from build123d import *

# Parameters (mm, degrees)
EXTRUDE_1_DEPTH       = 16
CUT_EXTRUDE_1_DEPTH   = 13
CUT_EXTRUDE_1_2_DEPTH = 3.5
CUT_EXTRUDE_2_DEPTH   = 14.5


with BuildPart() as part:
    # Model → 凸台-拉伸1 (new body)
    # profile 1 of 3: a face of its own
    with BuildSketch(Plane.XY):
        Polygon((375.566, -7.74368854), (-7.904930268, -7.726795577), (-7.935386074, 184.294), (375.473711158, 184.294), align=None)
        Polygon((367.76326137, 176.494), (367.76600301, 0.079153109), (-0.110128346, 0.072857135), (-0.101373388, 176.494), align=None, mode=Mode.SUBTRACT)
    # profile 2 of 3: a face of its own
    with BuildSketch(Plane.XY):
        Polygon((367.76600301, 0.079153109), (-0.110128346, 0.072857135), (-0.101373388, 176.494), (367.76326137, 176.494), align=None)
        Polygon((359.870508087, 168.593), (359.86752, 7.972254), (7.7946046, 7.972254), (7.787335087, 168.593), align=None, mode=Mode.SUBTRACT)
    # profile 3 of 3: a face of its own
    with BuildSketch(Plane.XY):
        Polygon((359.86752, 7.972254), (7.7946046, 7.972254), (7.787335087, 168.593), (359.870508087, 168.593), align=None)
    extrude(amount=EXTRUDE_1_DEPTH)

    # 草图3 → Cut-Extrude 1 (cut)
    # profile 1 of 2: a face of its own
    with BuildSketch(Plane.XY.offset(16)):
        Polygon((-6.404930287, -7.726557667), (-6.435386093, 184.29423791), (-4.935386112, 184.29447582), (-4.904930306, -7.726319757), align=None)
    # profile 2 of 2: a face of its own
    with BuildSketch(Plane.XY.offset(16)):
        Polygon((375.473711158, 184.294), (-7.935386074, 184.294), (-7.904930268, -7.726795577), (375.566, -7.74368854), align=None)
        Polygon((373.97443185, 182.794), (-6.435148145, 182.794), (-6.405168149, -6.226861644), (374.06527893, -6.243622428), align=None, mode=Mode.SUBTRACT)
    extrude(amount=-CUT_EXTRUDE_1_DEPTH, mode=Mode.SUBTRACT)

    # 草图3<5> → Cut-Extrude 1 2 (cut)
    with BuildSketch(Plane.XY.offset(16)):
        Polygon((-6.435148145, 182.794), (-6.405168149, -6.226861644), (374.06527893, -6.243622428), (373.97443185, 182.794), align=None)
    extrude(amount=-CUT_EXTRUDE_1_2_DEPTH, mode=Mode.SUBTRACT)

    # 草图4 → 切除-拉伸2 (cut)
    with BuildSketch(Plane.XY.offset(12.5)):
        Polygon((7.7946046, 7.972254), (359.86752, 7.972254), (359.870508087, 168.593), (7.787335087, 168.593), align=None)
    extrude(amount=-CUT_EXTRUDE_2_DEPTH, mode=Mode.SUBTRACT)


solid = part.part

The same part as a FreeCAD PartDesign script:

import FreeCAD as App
import Part
import Sketcher


def add_polygon(sketch, points):
    """Adds a closed chain of lines whose ends are joined by coincident constraints."""
    first, n = sketch.GeometryCount, len(points)
    for a, b in zip(points, points[1:] + points[:1]):
        sketch.addGeometry(Part.LineSegment(App.Vector(*a, 0), App.Vector(*b, 0)), False)
    for i in range(n):
        sketch.addConstraint(Sketcher.Constraint("Coincident", first + i, 2, first + (i + 1) % n, 1))

doc = App.newDocument("Part")
body = doc.addObject("PartDesign::Body", "Body")

# Sketch on XY plane
sketch1 = body.newObject("Sketcher::SketchObject", "Sketch")
sketch1.AttachmentSupport = (doc.getObject("XY_Plane"), [""])
sketch1.MapMode = "FlatFace"
add_polygon(sketch1, [(-8, -8), (376, -8), (375, 184), (-8, 184)])  # lines 0-3
sketch1.addConstraint([
    Sketcher.Constraint("Horizontal", 2),
    Sketcher.Constraint("DistanceX", -1, 1, 0, 2, 375.566),
    Sketcher.Constraint("DistanceY", -1, 1, 1, 2, 184.294),
    Sketcher.Constraint("Distance", 0, 383.470931),
    Sketcher.Constraint("Distance", 1, 192.037711),
    Sketcher.Constraint("DistanceX", 2, 2, 2, 1, 383.409097),
    Sketcher.Constraint("DistanceX", -1, 1, 1, 2, 375.473711),
    Sketcher.Constraint("Distance", 3, 192.020798),
])
pad1 = body.newObject("PartDesign::Pad", "Pad")
pad1.Profile = sketch1
pad1.Length = 16

# Sketch on XY plane
sketch2 = body.newObject("Sketcher::SketchObject", "Sketch001")
sketch2.AttachmentSupport = (doc.getObject("XY_Plane"), [""])
sketch2.MapMode = "FlatFace"
sketch2.AttachmentOffset = App.Placement(App.Vector(0, 0, 16), App.Rotation())
add_polygon(sketch2, [(375.566, -7.74369), (375.47371, 184.294), (-4.93539, 184.294), (-4.93539, 184.29448), (-6.43539, 184.29424), (-6.43539, 184.294), (-7.93539, 184.294), (-7.90493, -7.7268)])  # lines 0-7
add_polygon(sketch2, [(-4.93515, 182.794), (373.97443, 182.794), (374.06528, -6.24362), (-4.90517, -6.22693)])  # lines 8-11
sketch2.addConstraint([
    Sketcher.Constraint("Horizontal", 1),
    Sketcher.Constraint("Vertical", 2),
    Sketcher.Constraint("Vertical", 4),
    Sketcher.Constraint("Horizontal", 5),
    Sketcher.Constraint("Horizontal", 8),
    Sketcher.Constraint("Perpendicular", 3, 6),
    Sketcher.Constraint("Parallel", 0, 9),
    Sketcher.Constraint("Parallel", 7, 10),
    Sketcher.Constraint("Parallel", 6, 11),
    Sketcher.Constraint("Horizontal", 1, 2, 4, 2),
    Sketcher.Constraint("DistanceX", 5, 2, 5, 1, 1.5),
    Sketcher.Constraint("DistanceX", 5, 2, 2, 2, 3.0),
    Sketcher.Constraint("DistanceY", 8, 2, 0, 2, 1.5),
    Sketcher.Constraint("DistanceY", -1, 1, 0, 2, 184.294),
    Sketcher.Constraint("DistanceX", -1, 1, 7, 2, 375.566),
    Sketcher.Constraint("DistanceX", 8, 1, 8, 2, 378.90958),
    Sketcher.Constraint("Distance", 0, 192.037711),
    Sketcher.Constraint("Distance", 7, 383.470931),
    Sketcher.Constraint("Distance", 11, 189.02093),
    Sketcher.Constraint("DistanceX", 1, 2, 1, 1, 380.409097),
    Sketcher.Constraint("DistanceY", 2, 1, 2, 2, 0.000476),
    Sketcher.Constraint("DistanceX", -1, 1, 0, 2, 375.473711),
    Sketcher.Constraint("DistanceX", -1, 1, 8, 2, 373.974432),
    Sketcher.Constraint("DistanceY", 6, 2, 2, 2, 192.021271),
])
pocket1 = body.newObject("PartDesign::Pocket", "Pocket")
pocket1.Profile = sketch2
pocket1.Length = 13

# Sketch on XY plane
sketch3 = body.newObject("Sketcher::SketchObject", "Sketch002")
sketch3.AttachmentSupport = (doc.getObject("XY_Plane"), [""])
sketch3.MapMode = "FlatFace"
sketch3.AttachmentOffset = App.Placement(App.Vector(0, 0, 16), App.Rotation())
add_polygon(sketch3, [(-6, 183), (-6, -6), (374, -6), (374, 183)])  # lines 0-3
sketch3.addConstraint([
    Sketcher.Constraint("Horizontal", 3),
    Sketcher.Constraint("DistanceY", -1, 1, 2, 2, 182.794),
    Sketcher.Constraint("DistanceX", 3, 2, 3, 1, 380.40958),
    Sketcher.Constraint("DistanceX", 0, 2, 2, 2, 380.3796),
    Sketcher.Constraint("DistanceX", 0, 2, -1, 1, 6.405168),
    Sketcher.Constraint("DistanceY", 0, 2, -1, 1, 6.226862),
    Sketcher.Constraint("DistanceX", -1, 1, 1, 2, 374.065279),
    Sketcher.Constraint("DistanceY", 1, 2, 0, 2, 0.016761),
])
pocket2 = body.newObject("PartDesign::Pocket", "Pocket001")
pocket2.Profile = sketch3
pocket2.Length = 3.5

# Sketch on XY plane
sketch4 = body.newObject("Sketcher::SketchObject", "Sketch003")
sketch4.AttachmentSupport = (doc.getObject("XY_Plane"), [""])
sketch4.MapMode = "FlatFace"
sketch4.AttachmentOffset = App.Placement(App.Vector(0, 0, 12.5), App.Rotation())
add_polygon(sketch4, [(8, 8), (360, 8), (360, 169), (8, 169)])  # lines 0-3
sketch4.addConstraint([
    Sketcher.Constraint("Horizontal", 0),
    Sketcher.Constraint("Horizontal", 2),
    Sketcher.Constraint("DistanceY", -1, 1, 1, 2, 168.593),
    Sketcher.Constraint("DistanceX", 0, 1, 0, 2, 352.072915),
    Sketcher.Constraint("DistanceX", 2, 2, 2, 1, 352.083173),
    Sketcher.Constraint("DistanceX", -1, 1, 0, 2, 359.86752),
    Sketcher.Constraint("DistanceX", -1, 1, 1, 2, 359.870508),
    Sketcher.Constraint("Distance", 1, 160.620746),
])
pocket3 = body.newObject("PartDesign::Pocket", "Pocket002")
pocket3.Profile = sketch4
pocket3.Length = 14.5

doc.recompute()
